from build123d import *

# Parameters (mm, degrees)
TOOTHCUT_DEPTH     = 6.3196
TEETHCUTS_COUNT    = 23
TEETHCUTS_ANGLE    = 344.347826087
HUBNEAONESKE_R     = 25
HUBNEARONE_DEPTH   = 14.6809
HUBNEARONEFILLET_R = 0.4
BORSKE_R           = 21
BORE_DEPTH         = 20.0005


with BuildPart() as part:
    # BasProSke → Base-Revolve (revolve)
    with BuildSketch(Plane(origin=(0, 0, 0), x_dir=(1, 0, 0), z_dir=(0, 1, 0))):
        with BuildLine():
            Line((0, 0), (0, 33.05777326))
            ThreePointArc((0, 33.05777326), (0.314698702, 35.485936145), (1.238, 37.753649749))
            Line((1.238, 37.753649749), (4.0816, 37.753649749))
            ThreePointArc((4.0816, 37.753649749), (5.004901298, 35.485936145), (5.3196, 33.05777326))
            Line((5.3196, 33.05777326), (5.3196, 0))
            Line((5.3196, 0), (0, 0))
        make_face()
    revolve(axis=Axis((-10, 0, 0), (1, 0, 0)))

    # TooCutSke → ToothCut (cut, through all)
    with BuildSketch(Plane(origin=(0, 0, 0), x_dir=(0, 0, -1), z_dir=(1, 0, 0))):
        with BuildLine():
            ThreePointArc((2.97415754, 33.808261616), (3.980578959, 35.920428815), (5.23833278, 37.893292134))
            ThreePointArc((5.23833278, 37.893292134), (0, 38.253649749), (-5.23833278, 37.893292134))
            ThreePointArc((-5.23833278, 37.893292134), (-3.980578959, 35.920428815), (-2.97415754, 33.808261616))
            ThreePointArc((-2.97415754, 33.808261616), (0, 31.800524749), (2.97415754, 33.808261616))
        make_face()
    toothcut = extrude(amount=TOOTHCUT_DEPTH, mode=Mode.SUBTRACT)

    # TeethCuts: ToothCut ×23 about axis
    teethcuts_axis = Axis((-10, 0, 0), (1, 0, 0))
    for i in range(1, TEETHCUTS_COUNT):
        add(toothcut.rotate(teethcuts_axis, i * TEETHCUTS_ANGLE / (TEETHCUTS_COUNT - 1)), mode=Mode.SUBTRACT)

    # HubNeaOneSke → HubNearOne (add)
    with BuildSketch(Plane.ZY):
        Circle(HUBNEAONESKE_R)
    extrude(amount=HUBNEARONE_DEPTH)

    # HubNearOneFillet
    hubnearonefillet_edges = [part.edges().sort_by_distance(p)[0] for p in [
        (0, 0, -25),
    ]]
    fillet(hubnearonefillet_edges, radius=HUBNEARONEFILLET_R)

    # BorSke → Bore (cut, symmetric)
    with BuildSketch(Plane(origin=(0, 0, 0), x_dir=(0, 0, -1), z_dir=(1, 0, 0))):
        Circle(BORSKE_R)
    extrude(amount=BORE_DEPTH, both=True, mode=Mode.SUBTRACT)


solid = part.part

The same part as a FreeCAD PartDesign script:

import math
import FreeCAD as App
import Part
import Sketcher
from FreeCAD import Vector


def edges_at(feature, points):
    """Names of the edges that pass closest to the given points."""
    edges = feature.Shape.Edges
    near = lambda p: min(range(len(edges)), key=lambda i: edges[i].distToShape(Part.Vertex(*p))[0])
    return sorted({f"Edge{near(p) + 1}" for p in points})

doc = App.newDocument("Part")
body = doc.addObject("PartDesign::Body", "Body")

sketch1 = body.newObject("Sketcher::SketchObject", "Sketch")
sketch1.AttachmentSupport = (doc.getObject("XZ_Plane"), [""])
sketch1.MapMode = "FlatFace"
sketch1.addGeometry([
    Part.LineSegment(Vector(0, -33.1, 0), Vector(0, 0, 0)),
    Part.LineSegment(Vector(0, 0, 0), Vector(5.3, 0, 0)),
    Part.LineSegment(Vector(5.3, 0, 0), Vector(5.3, -33.1, 0)),
    Part.ArcOfCircle(Part.Circle(Vector(-4.2, -33.1, 0), Vector(0, 0, 1), 9.5), math.radians(-30), math.radians(0)),
    Part.LineSegment(Vector(4.1, -37.8, 0), Vector(1.2, -37.8, 0)),
    Part.ArcOfCircle(Part.Circle(Vector(9.5, -33.1, 0), Vector(0, 0, 1), 9.5), math.radians(-180), math.radians(-150)),
], False)
sketch1.addConstraint([
    Sketcher.Constraint("Coincident", 0, 2, 1, 1),
    Sketcher.Constraint("Coincident", 1, 2, 2, 1),
    Sketcher.Constraint("Tangent", 2, 2, 3, 2),
    Sketcher.Constraint("Coincident", 3, 1, 4, 1),
    Sketcher.Constraint("Coincident", 4, 2, 5, 2),
    Sketcher.Constraint("Tangent", 5, 1, 0, 1),
    Sketcher.Constraint("Vertical", 0),
    Sketcher.Constraint("Horizontal", 1),
    Sketcher.Constraint("Vertical", 2),
    Sketcher.Constraint("Horizontal", 4),
    Sketcher.Constraint("Coincident", 0, 2, -1, 1),
    Sketcher.Constraint("Equal", 3, 5),
    Sketcher.Constraint("Horizontal", 3, 3, 5, 3),
    Sketcher.Constraint("Radius", 3, 9.525),
    Sketcher.Constraint("DistanceX", 1, 1, 1, 2, 5.3196),
    Sketcher.Constraint("DistanceX", 4, 2, 4, 1, 2.8436),
    Sketcher.Constraint("DistanceY", 0, 1, 0, 2, 33.057773),
])
revolution = body.newObject("PartDesign::Revolution", "Revolution")
revolution.Profile = sketch1
revolution.ReferenceAxis = (sketch1, ["H_Axis"])
revolution.Angle = 360

sketch2 = body.newObject("Sketcher::SketchObject", "Sketch001")
sketch2.AttachmentSupport = (doc.getObject("YZ_Plane"), [""])
sketch2.MapMode = "FlatFace"
sketch2.addGeometry([
    Part.ArcOfCircle(Part.Circle(Vector(26.7, -20.6, 0), Vector(0, 0, 1), 19.1), math.radians(53.96), math.radians(68.04)),
    Part.ArcOfCircle(Part.Circle(Vector(0, 0, 0), Vector(0, 0, 1), 38.3), math.radians(-7.87), math.radians(7.87)),
    Part.ArcOfCircle(Part.Circle(Vector(26.7, 20.6, 0), Vector(0, 0, 1), 19.1), math.radians(-68.04), math.radians(-53.96)),
    Part.ArcOfCircle(Part.Circle(Vector(35, 0, 0), Vector(0, 0, 1), 3.2), math.radians(112), math.radians(248)),
], False)
sketch2.addConstraint([
    Sketcher.Constraint("Coincident", 0, 1, 1, 1),
    Sketcher.Constraint("Coincident", 1, 2, 2, 2),
    Sketcher.Constraint("Tangent", 2, 1, 3, 1),
    Sketcher.Constraint("Tangent", 3, 2, 0, 2),
    Sketcher.Constraint("Coincident", 1, 3, -1, 1),
    Sketcher.Constraint("Equal", 0, 2),
    Sketcher.Constraint("Symmetric", 0, 3, 2, 3, -1),
    Sketcher.Constraint("Radius", 0, 19.05),
    Sketcher.Constraint("Radius", 1, 38.25365),
    Sketcher.Constraint("Radius", 3, 3.20675),
    Sketcher.Constraint("DistanceX", -1, 1, 0, 3, 26.685411),
    Sketcher.Constraint("DistanceY", 0, 3, -1, 1, 20.64242),
])
pocket1 = body.newObject("PartDesign::Pocket", "Pocket")
pocket1.Profile = sketch2
pocket1.Type = "ThroughAll"
pocket1.Reversed = True
doc.recompute()

polarpattern = body.newObject("PartDesign::PolarPattern", "PolarPattern")
polarpattern.Originals = [pocket1]
polarpattern.Axis = (doc.getObject("X_Axis"), [""])
polarpattern.Angle = 360
polarpattern.Occurrences = 23
body.Tip = polarpattern

sketch3 = body.newObject("Sketcher::SketchObject", "Sketch002")
sketch3.AttachmentSupport = (doc.getObject("YZ_Plane"), [""])
sketch3.MapMode = "FlatFace"
sketch3.addGeometry(Part.Circle(Vector(0, 0, 0), Vector(0, 0, 1), 25), False)
sketch3.addConstraint([
    Sketcher.Constraint("Coincident", 0, 3, -1, 1),
    Sketcher.Constraint("Diameter", 0, 50.0),
])
pad1 = body.newObject("PartDesign::Pad", "Pad")
pad1.Profile = sketch3
pad1.Length = 14.6809
pad1.Reversed = True
doc.recompute()

fillet = body.newObject("PartDesign::Fillet", "Fillet")
fillet.Base = (pad1, edges_at(pad1, [(0, 0, -25)]))
fillet.Radius = 0.4

sketch4 = body.newObject("Sketcher::SketchObject", "Sketch003")
sketch4.AttachmentSupport = (doc.getObject("YZ_Plane"), [""])
sketch4.MapMode = "FlatFace"
sketch4.addGeometry(Part.Circle(Vector(0, 0, 0), Vector(0, 0, 1), 21), False)
sketch4.addConstraint([
    Sketcher.Constraint("Coincident", 0, 3, -1, 1),
    Sketcher.Constraint("Diameter", 0, 42.0),
])
pocket2 = body.newObject("PartDesign::Pocket", "Pocket001")
pocket2.Profile = sketch4
pocket2.Length = 40.001
pocket2.Midplane = True

doc.recompute()
